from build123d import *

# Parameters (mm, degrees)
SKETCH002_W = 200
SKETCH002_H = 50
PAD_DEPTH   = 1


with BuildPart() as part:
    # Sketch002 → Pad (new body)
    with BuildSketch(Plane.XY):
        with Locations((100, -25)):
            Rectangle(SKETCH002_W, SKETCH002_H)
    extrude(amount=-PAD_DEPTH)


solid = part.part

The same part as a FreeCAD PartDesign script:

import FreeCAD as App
import Part
import Sketcher
from FreeCAD import Vector


def add_polygon(sketch, points):
    """Adds a closed chain of lines whose ends are joined by coincident constraints."""
    first, n = sketch.GeometryCount, len(points)
    for a, b in zip(points, points[1:] + points[:1]):
        sketch.addGeometry(Part.LineSegment(App.Vector(*a, 0), App.Vector(*b, 0)), False)
    for i in range(n):
        sketch.addConstraint(Sketcher.Constraint("Coincident", first + i, 2, first + (i + 1) % n, 1))

doc = App.newDocument("Part")
body = doc.addObject("PartDesign::Body", "Body")

# Sketch on XY plane
sketch1 = body.newObject("Sketcher::SketchObject", "Sketch")
sketch1.AttachmentSupport = (doc.getObject("XY_Plane"), [""])
sketch1.MapMode = "FlatFace"
add_polygon(sketch1, [(0, 0), (0, -50), (200, -50), (200, 0)])  # lines 0-3
sketch1.addConstraint(Sketcher.Constraint("Vertical", 0))
sketch1.addConstraint(Sketcher.Constraint("Horizontal", 1))
sketch1.addConstraint(Sketcher.Constraint("Vertical", 2))
sketch1.addConstraint(Sketcher.Constraint("Horizontal", 3))
sketch1.addConstraint(Sketcher.Constraint("Coincident", 3, 2, -1, 1))
sketch1.addConstraint(Sketcher.Constraint("DistanceX", 1, 1, 1, 2, 200.0))
sketch1.addConstraint(Sketcher.Constraint("DistanceY", 0, 2, 0, 1, 50.0))
pad1 = body.newObject("PartDesign::Pad", "Pad")
pad1.Profile = sketch1
pad1.Length = 1
pad1.Reversed = True

doc.recompute()
